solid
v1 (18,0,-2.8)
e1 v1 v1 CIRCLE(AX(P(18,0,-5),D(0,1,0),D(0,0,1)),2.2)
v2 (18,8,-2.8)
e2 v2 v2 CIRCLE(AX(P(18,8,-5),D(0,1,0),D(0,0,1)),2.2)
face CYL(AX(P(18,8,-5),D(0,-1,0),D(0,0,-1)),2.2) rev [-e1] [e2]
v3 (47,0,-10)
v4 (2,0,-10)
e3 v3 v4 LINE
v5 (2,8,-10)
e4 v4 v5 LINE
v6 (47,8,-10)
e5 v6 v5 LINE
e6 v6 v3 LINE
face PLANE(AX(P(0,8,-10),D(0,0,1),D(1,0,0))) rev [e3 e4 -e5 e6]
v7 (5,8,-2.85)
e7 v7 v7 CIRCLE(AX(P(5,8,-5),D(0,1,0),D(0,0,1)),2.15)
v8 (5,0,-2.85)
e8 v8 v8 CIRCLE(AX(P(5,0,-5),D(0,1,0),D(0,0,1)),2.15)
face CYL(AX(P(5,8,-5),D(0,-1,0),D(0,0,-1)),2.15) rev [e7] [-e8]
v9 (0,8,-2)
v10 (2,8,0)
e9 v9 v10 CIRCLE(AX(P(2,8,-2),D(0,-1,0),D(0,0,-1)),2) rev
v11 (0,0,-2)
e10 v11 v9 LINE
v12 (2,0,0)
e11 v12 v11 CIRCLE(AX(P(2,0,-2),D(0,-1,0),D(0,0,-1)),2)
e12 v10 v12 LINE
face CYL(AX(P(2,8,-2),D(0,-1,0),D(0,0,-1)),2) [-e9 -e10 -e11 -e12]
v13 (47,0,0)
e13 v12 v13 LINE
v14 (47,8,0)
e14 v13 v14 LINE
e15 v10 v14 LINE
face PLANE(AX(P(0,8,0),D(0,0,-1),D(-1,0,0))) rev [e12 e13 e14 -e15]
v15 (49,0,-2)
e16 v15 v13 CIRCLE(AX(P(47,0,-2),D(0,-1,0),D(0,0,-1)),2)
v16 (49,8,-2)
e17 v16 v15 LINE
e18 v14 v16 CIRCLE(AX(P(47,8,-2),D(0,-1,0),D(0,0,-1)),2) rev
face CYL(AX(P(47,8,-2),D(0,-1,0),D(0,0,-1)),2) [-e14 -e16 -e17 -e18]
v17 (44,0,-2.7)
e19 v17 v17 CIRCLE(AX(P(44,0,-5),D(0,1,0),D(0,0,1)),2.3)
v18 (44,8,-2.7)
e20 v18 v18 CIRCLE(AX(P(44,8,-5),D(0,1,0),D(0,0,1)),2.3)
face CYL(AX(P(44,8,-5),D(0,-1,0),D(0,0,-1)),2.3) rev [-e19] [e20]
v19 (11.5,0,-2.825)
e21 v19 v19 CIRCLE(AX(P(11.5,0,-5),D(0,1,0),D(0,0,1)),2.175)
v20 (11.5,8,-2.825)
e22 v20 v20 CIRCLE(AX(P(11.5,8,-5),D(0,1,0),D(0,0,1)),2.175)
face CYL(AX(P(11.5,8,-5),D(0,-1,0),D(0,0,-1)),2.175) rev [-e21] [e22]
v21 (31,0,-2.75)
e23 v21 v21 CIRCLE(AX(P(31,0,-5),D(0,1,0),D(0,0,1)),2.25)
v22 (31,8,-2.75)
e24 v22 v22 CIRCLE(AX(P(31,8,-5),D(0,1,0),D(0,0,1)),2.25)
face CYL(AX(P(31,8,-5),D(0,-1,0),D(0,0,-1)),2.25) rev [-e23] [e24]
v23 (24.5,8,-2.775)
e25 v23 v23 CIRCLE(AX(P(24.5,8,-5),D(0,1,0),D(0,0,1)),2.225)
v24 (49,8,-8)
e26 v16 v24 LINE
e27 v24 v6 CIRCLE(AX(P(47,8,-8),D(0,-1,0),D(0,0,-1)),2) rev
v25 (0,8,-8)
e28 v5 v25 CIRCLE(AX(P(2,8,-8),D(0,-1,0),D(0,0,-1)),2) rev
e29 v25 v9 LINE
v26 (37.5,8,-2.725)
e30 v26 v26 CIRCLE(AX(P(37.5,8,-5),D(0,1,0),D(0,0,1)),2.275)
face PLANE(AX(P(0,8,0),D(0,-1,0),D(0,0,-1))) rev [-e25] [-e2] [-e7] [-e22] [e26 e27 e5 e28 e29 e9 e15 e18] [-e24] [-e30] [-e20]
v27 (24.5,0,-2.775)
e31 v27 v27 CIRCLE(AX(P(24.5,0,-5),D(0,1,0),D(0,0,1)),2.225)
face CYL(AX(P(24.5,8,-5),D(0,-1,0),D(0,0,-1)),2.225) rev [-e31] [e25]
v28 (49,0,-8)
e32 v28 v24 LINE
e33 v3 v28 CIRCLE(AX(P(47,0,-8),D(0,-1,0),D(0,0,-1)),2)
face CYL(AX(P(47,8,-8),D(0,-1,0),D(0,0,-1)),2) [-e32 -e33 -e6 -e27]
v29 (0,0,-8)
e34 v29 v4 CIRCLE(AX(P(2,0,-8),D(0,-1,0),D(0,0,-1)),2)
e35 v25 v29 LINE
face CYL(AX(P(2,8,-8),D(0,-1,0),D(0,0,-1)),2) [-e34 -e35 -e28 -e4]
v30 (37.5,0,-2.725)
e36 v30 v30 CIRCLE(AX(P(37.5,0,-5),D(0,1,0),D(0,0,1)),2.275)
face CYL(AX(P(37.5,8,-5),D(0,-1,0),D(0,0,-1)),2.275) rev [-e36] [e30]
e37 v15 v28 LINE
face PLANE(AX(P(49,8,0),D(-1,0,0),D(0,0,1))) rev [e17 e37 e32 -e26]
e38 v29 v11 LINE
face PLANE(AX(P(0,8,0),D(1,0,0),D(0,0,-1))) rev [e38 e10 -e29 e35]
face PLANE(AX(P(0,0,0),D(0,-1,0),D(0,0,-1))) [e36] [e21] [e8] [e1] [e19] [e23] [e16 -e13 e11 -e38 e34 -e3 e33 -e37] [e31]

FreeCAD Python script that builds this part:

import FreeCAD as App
import Part
import Sketcher
Q = App.Units.Quantity


def edges_at(feature, points):
    """Names of the edges that pass closest to the given points."""
    edges = feature.Shape.Edges
    near = lambda p: min(range(len(edges)), key=lambda i: edges[i].distToShape(Part.Vertex(*p))[0])
    return sorted({f"Edge{near(p) + 1}" for p in points})


def add_polygon(sketch, points):
    """Adds a closed chain of lines whose ends are joined by coincident constraints."""
    first, n = sketch.GeometryCount, len(points)
    for a, b in zip(points, points[1:] + points[:1]):
        sketch.addGeometry(Part.LineSegment(App.Vector(*a, 0), App.Vector(*b, 0)), False)
    for i in range(n):
        sketch.addConstraint(Sketcher.Constraint("Coincident", first + i, 2, first + (i + 1) % n, 1))

doc = App.newDocument("Part")
body = doc.addObject("PartDesign::Body", "Body")

# Sketch on XZ plane
sketch1 = body.newObject("Sketcher::SketchObject", "Sketch")
sketch1.AttachmentSupport = (doc.getObject("XZ_Plane"), [""])
sketch1.MapMode = "FlatFace"
add_polygon(sketch1, [(0, -10), (0, 0), (49, 0), (49, -10)])  # lines 0-3
sketch1.addGeometry(Part.Circle(App.Vector(5, -5, 0), App.Vector(0, 0, 1), 2.1), False)  # 4
sketch1.addGeometry(Part.Circle(App.Vector(11.5, -5, 0), App.Vector(0, 0, 1), 2.2), False)  # 5
sketch1.addGeometry(Part.Circle(App.Vector(18, -5, 0), App.Vector(0, 0, 1), 2.2), False)  # 6
sketch1.addGeometry(Part.Circle(App.Vector(24.5, -5, 0), App.Vector(0, 0, 1), 2.2), False)  # 7
sketch1.addGeometry(Part.Circle(App.Vector(31, -5, 0), App.Vector(0, 0, 1), 2.2), False)  # 8
sketch1.addGeometry(Part.Circle(App.Vector(37.5, -5, 0), App.Vector(0, 0, 1), 2.3), False)  # 9
sketch1.addGeometry(Part.Circle(App.Vector(44, -5, 0), App.Vector(0, 0, 1), 2.3), False)  # 10
sketch1.addConstraint([
    Sketcher.Constraint("Vertical", 0),
    Sketcher.Constraint("Horizontal", 1),
    Sketcher.Constraint("Vertical", 2),
    Sketcher.Constraint("Horizontal", 3),
    Sketcher.Constraint("Coincident", 0, 2, -1, 1),
    Sketcher.Constraint("Horizontal", 4, 3, 5, 3),
    Sketcher.Constraint("Horizontal", 5, 3, 6, 3),
    Sketcher.Constraint("Horizontal", 6, 3, 7, 3),
    Sketcher.Constraint("Horizontal", 7, 3, 8, 3),
    Sketcher.Constraint("Horizontal", 8, 3, 9, 3),
    Sketcher.Constraint("Horizontal", 9, 3, 10, 3),
    Sketcher.Constraint("Diameter", 4, Q("4.3 mm")),
    Sketcher.Constraint("Diameter", 6, Q("4.4 mm")),
    Sketcher.Constraint("Diameter", 8, Q("4.5 mm")),
    Sketcher.Constraint("Diameter", 10, Q("4.6 mm")),
    Sketcher.Constraint("Diameter", 5, Q("4.35 mm")),
    Sketcher.Constraint("Diameter", 7, Q("4.45 mm")),
    Sketcher.Constraint("Diameter", 9, Q("4.55 mm")),
    Sketcher.Constraint("DistanceX", 1, 1, 1, 2, Q("49 mm")),
    Sketcher.Constraint("DistanceY", 0, 1, 0, 2, Q("10 mm")),
    Sketcher.Constraint("DistanceX", -1, 1, 4, 3, Q("5 mm")),
    Sketcher.Constraint("DistanceY", 4, 3, -1, 1, Q("5 mm")),
    Sketcher.Constraint("DistanceX", -1, 1, 6, 3, Q("18 mm")),
    Sketcher.Constraint("DistanceX", -1, 1, 8, 3, Q("31 mm")),
    Sketcher.Constraint("DistanceX", -1, 1, 10, 3, Q("44 mm")),
    Sketcher.Constraint("DistanceX", 5, 3, 7, 3, Q("13 mm")),
    Sketcher.Constraint("DistanceX", 7, 3, 9, 3, Q("13 mm")),
    Sketcher.Constraint("DistanceX", -1, 1, 5, 3, Q("11.5 mm")),
])
pad1 = body.newObject("PartDesign::Pad", "Pad")
pad1.Profile = sketch1
pad1.Length = 8
pad1.Reversed = True
doc.recompute()

fillet = body.newObject("PartDesign::Fillet", "Fillet")
fillet.Base = (pad1, edges_at(pad1, [
    (0, 4, -10),
    (49, 4, -10),
    (49, 4, 0),
    (0, 4, 0),
]))
fillet.Radius = 2

doc.recompute()
